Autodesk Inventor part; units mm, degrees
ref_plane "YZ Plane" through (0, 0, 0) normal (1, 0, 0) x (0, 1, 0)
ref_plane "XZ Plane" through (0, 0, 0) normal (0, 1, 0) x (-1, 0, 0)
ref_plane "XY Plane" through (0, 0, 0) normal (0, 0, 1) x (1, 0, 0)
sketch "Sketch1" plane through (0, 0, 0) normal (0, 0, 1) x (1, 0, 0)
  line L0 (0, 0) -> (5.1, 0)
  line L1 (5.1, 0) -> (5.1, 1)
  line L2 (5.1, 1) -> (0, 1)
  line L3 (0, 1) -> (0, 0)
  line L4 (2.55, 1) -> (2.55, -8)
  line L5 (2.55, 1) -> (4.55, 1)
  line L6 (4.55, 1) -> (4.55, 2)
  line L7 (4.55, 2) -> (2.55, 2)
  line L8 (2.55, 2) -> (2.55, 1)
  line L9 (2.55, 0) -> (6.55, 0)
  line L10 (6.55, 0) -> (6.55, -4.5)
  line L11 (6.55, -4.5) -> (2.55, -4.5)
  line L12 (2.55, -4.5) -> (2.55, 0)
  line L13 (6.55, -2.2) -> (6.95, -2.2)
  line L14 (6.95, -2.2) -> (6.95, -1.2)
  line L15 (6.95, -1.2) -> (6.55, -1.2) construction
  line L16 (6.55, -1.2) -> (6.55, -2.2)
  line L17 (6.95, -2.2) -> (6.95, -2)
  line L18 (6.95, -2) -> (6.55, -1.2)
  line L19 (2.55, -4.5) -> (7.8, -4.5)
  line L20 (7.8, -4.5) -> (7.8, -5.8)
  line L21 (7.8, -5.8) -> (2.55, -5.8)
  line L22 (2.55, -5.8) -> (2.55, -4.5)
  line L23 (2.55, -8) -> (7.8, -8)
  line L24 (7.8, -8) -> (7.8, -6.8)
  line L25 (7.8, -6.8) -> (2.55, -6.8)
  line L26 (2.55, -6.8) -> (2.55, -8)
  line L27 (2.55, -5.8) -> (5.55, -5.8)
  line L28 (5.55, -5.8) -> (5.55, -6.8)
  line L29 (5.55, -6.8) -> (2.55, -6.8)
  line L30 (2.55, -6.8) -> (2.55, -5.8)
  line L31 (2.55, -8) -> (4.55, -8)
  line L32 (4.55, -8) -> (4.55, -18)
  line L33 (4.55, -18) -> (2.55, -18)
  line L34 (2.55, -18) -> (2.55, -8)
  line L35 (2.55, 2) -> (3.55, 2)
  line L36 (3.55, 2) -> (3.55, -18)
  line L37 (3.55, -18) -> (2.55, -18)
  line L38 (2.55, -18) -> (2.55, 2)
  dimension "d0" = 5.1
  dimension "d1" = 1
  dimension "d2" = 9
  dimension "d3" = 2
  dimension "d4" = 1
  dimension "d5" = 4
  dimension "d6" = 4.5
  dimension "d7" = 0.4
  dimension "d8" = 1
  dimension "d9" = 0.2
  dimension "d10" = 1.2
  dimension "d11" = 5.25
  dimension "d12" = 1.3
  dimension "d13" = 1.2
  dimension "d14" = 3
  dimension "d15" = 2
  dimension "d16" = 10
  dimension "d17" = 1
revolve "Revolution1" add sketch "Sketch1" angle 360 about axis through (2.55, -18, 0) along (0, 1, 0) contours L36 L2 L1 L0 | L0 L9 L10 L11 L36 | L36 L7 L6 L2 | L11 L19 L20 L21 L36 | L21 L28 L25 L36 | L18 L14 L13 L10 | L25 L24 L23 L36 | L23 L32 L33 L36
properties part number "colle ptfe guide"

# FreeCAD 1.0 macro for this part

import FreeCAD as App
import Part
import Sketcher
from FreeCAD import Vector
Q = App.Units.Quantity


def add_polygon(sketch, points):
    """Adds a closed chain of lines whose ends are joined by coincident constraints."""
    first, n = sketch.GeometryCount, len(points)
    for a, b in zip(points, points[1:] + points[:1]):
        sketch.addGeometry(Part.LineSegment(App.Vector(*a, 0), App.Vector(*b, 0)), False)
    for i in range(n):
        sketch.addConstraint(Sketcher.Constraint("Coincident", first + i, 2, first + (i + 1) % n, 1))

doc = App.newDocument("Part")
body = doc.addObject("PartDesign::Body", "Body")

# Sketch on XY plane
sketch1 = body.newObject("Sketcher::SketchObject", "Sketch")
sketch1.AttachmentSupport = (doc.getObject("XY_Plane"), [""])
sketch1.MapMode = "FlatFace"
add_polygon(sketch1, [(3.55, -18), (4.55, -18), (4.55, -8), (7.8, -8), (7.8, -6.8), (5.55, -6.8), (5.55, -5.8), (7.8, -5.8), (7.8, -4.5), (6.55, -4.5), (6.55, -2.2), (6.95, -2.2), (6.95, -2), (6.55, -1.2), (6.55, 0), (5.1, 0), (5.1, 1), (4.55, 1), (4.55, 2), (3.55, 2)])  # lines 0-19
sketch1.addGeometry(Part.LineSegment(Vector(2.55, -18, 0), Vector(2.55, 2, 0)), True)  # axis
sketch1.addConstraint(Sketcher.Constraint("Horizontal", 0))
sketch1.addConstraint(Sketcher.Constraint("Vertical", 1))
sketch1.addConstraint(Sketcher.Constraint("Horizontal", 2))
sketch1.addConstraint(Sketcher.Constraint("Vertical", 3))
sketch1.addConstraint(Sketcher.Constraint("Horizontal", 4))
sketch1.addConstraint(Sketcher.Constraint("Vertical", 5))
sketch1.addConstraint(Sketcher.Constraint("Horizontal", 6))
sketch1.addConstraint(Sketcher.Constraint("Vertical", 7))
sketch1.addConstraint(Sketcher.Constraint("Horizontal", 8))
sketch1.addConstraint(Sketcher.Constraint("Vertical", 9))
sketch1.addConstraint(Sketcher.Constraint("Horizontal", 10))
sketch1.addConstraint(Sketcher.Constraint("Vertical", 11))
sketch1.addConstraint(Sketcher.Constraint("Vertical", 13))
sketch1.addConstraint(Sketcher.Constraint("Horizontal", 14))
sketch1.addConstraint(Sketcher.Constraint("Vertical", 15))
sketch1.addConstraint(Sketcher.Constraint("Horizontal", 16))
sketch1.addConstraint(Sketcher.Constraint("Vertical", 17))
sketch1.addConstraint(Sketcher.Constraint("Horizontal", 18))
sketch1.addConstraint(Sketcher.Constraint("Vertical", 19))
sketch1.addConstraint(Sketcher.Constraint("Vertical", 20))
sketch1.addConstraint(Sketcher.Constraint("PointOnObject", 13, 2, -1))
sketch1.addConstraint(Sketcher.Constraint("Horizontal", 19, 2, 20, 1))
sketch1.addConstraint(Sketcher.Constraint("Horizontal", 18, 2, 20, 2))
sketch1.addConstraint(Sketcher.Constraint("Vertical", 3, 2, 6, 2))
sketch1.addConstraint(Sketcher.Constraint("Vertical", 9, 2, 12, 2))
sketch1.addConstraint(Sketcher.Constraint("Vertical", 1, 2, 16, 2))
sketch1.addConstraint(Sketcher.Constraint("Equal", 18, 5))
sketch1.addConstraint(Sketcher.Constraint("Equal", 3, 13))
sketch1.addConstraint(Sketcher.Constraint("Equal", 5, 15))
sketch1.addConstraint(Sketcher.Constraint("Equal", 15, 17))
sketch1.addConstraint(Sketcher.Constraint("DistanceX", 0, 1, 0, 2, Q("1 mm")))
sketch1.addConstraint(Sketcher.Constraint("DistanceY", 1, 1, 1, 2, Q("10 mm")))
sketch1.addConstraint(Sketcher.Constraint("DistanceX", 10, 1, 10, 2, Q("0.4 mm")))
sketch1.addConstraint(Sketcher.Constraint("DistanceY", 3, 1, 3, 2, Q("1.2 mm")))
sketch1.addConstraint(Sketcher.Constraint("DistanceY", 7, 1, 7, 2, Q("1.3 mm")))
sketch1.addConstraint(Sketcher.Constraint("DistanceY", 11, 1, 11, 2, Q("0.2 mm")))
sketch1.addConstraint(Sketcher.Constraint("DistanceY", 11, 2, -1, 1, Q("2 mm")))
sketch1.addConstraint(Sketcher.Constraint("DistanceX", 1, 2, 4, 2, Q("1 mm")))
sketch1.addConstraint(Sketcher.Constraint("DistanceX", 5, 2, 8, 2, Q("1 mm")))
sketch1.addConstraint(Sketcher.Constraint("DistanceX", 20, 1, 19, 2, Q("1 mm")))
sketch1.addConstraint(Sketcher.Constraint("DistanceY", 7, 2, -1, 1, Q("4.5 mm")))
sketch1.addConstraint(Sketcher.Constraint("DistanceX", -1, 1, 14, 2, Q("5.1 mm")))
sketch1.addConstraint(Sketcher.Constraint("DistanceX", 20, 1, 2, 2, Q("5.25 mm")))
sketch1.addConstraint(Sketcher.Constraint("DistanceX", 14, 2, 14, 1, Q("1.45 mm")))
revolution = body.newObject("PartDesign::Revolution", "Revolution")
revolution.Profile = sketch1
revolution.ReferenceAxis = (sketch1, ["Axis0"])
revolution.Angle = 360

doc.recompute()
